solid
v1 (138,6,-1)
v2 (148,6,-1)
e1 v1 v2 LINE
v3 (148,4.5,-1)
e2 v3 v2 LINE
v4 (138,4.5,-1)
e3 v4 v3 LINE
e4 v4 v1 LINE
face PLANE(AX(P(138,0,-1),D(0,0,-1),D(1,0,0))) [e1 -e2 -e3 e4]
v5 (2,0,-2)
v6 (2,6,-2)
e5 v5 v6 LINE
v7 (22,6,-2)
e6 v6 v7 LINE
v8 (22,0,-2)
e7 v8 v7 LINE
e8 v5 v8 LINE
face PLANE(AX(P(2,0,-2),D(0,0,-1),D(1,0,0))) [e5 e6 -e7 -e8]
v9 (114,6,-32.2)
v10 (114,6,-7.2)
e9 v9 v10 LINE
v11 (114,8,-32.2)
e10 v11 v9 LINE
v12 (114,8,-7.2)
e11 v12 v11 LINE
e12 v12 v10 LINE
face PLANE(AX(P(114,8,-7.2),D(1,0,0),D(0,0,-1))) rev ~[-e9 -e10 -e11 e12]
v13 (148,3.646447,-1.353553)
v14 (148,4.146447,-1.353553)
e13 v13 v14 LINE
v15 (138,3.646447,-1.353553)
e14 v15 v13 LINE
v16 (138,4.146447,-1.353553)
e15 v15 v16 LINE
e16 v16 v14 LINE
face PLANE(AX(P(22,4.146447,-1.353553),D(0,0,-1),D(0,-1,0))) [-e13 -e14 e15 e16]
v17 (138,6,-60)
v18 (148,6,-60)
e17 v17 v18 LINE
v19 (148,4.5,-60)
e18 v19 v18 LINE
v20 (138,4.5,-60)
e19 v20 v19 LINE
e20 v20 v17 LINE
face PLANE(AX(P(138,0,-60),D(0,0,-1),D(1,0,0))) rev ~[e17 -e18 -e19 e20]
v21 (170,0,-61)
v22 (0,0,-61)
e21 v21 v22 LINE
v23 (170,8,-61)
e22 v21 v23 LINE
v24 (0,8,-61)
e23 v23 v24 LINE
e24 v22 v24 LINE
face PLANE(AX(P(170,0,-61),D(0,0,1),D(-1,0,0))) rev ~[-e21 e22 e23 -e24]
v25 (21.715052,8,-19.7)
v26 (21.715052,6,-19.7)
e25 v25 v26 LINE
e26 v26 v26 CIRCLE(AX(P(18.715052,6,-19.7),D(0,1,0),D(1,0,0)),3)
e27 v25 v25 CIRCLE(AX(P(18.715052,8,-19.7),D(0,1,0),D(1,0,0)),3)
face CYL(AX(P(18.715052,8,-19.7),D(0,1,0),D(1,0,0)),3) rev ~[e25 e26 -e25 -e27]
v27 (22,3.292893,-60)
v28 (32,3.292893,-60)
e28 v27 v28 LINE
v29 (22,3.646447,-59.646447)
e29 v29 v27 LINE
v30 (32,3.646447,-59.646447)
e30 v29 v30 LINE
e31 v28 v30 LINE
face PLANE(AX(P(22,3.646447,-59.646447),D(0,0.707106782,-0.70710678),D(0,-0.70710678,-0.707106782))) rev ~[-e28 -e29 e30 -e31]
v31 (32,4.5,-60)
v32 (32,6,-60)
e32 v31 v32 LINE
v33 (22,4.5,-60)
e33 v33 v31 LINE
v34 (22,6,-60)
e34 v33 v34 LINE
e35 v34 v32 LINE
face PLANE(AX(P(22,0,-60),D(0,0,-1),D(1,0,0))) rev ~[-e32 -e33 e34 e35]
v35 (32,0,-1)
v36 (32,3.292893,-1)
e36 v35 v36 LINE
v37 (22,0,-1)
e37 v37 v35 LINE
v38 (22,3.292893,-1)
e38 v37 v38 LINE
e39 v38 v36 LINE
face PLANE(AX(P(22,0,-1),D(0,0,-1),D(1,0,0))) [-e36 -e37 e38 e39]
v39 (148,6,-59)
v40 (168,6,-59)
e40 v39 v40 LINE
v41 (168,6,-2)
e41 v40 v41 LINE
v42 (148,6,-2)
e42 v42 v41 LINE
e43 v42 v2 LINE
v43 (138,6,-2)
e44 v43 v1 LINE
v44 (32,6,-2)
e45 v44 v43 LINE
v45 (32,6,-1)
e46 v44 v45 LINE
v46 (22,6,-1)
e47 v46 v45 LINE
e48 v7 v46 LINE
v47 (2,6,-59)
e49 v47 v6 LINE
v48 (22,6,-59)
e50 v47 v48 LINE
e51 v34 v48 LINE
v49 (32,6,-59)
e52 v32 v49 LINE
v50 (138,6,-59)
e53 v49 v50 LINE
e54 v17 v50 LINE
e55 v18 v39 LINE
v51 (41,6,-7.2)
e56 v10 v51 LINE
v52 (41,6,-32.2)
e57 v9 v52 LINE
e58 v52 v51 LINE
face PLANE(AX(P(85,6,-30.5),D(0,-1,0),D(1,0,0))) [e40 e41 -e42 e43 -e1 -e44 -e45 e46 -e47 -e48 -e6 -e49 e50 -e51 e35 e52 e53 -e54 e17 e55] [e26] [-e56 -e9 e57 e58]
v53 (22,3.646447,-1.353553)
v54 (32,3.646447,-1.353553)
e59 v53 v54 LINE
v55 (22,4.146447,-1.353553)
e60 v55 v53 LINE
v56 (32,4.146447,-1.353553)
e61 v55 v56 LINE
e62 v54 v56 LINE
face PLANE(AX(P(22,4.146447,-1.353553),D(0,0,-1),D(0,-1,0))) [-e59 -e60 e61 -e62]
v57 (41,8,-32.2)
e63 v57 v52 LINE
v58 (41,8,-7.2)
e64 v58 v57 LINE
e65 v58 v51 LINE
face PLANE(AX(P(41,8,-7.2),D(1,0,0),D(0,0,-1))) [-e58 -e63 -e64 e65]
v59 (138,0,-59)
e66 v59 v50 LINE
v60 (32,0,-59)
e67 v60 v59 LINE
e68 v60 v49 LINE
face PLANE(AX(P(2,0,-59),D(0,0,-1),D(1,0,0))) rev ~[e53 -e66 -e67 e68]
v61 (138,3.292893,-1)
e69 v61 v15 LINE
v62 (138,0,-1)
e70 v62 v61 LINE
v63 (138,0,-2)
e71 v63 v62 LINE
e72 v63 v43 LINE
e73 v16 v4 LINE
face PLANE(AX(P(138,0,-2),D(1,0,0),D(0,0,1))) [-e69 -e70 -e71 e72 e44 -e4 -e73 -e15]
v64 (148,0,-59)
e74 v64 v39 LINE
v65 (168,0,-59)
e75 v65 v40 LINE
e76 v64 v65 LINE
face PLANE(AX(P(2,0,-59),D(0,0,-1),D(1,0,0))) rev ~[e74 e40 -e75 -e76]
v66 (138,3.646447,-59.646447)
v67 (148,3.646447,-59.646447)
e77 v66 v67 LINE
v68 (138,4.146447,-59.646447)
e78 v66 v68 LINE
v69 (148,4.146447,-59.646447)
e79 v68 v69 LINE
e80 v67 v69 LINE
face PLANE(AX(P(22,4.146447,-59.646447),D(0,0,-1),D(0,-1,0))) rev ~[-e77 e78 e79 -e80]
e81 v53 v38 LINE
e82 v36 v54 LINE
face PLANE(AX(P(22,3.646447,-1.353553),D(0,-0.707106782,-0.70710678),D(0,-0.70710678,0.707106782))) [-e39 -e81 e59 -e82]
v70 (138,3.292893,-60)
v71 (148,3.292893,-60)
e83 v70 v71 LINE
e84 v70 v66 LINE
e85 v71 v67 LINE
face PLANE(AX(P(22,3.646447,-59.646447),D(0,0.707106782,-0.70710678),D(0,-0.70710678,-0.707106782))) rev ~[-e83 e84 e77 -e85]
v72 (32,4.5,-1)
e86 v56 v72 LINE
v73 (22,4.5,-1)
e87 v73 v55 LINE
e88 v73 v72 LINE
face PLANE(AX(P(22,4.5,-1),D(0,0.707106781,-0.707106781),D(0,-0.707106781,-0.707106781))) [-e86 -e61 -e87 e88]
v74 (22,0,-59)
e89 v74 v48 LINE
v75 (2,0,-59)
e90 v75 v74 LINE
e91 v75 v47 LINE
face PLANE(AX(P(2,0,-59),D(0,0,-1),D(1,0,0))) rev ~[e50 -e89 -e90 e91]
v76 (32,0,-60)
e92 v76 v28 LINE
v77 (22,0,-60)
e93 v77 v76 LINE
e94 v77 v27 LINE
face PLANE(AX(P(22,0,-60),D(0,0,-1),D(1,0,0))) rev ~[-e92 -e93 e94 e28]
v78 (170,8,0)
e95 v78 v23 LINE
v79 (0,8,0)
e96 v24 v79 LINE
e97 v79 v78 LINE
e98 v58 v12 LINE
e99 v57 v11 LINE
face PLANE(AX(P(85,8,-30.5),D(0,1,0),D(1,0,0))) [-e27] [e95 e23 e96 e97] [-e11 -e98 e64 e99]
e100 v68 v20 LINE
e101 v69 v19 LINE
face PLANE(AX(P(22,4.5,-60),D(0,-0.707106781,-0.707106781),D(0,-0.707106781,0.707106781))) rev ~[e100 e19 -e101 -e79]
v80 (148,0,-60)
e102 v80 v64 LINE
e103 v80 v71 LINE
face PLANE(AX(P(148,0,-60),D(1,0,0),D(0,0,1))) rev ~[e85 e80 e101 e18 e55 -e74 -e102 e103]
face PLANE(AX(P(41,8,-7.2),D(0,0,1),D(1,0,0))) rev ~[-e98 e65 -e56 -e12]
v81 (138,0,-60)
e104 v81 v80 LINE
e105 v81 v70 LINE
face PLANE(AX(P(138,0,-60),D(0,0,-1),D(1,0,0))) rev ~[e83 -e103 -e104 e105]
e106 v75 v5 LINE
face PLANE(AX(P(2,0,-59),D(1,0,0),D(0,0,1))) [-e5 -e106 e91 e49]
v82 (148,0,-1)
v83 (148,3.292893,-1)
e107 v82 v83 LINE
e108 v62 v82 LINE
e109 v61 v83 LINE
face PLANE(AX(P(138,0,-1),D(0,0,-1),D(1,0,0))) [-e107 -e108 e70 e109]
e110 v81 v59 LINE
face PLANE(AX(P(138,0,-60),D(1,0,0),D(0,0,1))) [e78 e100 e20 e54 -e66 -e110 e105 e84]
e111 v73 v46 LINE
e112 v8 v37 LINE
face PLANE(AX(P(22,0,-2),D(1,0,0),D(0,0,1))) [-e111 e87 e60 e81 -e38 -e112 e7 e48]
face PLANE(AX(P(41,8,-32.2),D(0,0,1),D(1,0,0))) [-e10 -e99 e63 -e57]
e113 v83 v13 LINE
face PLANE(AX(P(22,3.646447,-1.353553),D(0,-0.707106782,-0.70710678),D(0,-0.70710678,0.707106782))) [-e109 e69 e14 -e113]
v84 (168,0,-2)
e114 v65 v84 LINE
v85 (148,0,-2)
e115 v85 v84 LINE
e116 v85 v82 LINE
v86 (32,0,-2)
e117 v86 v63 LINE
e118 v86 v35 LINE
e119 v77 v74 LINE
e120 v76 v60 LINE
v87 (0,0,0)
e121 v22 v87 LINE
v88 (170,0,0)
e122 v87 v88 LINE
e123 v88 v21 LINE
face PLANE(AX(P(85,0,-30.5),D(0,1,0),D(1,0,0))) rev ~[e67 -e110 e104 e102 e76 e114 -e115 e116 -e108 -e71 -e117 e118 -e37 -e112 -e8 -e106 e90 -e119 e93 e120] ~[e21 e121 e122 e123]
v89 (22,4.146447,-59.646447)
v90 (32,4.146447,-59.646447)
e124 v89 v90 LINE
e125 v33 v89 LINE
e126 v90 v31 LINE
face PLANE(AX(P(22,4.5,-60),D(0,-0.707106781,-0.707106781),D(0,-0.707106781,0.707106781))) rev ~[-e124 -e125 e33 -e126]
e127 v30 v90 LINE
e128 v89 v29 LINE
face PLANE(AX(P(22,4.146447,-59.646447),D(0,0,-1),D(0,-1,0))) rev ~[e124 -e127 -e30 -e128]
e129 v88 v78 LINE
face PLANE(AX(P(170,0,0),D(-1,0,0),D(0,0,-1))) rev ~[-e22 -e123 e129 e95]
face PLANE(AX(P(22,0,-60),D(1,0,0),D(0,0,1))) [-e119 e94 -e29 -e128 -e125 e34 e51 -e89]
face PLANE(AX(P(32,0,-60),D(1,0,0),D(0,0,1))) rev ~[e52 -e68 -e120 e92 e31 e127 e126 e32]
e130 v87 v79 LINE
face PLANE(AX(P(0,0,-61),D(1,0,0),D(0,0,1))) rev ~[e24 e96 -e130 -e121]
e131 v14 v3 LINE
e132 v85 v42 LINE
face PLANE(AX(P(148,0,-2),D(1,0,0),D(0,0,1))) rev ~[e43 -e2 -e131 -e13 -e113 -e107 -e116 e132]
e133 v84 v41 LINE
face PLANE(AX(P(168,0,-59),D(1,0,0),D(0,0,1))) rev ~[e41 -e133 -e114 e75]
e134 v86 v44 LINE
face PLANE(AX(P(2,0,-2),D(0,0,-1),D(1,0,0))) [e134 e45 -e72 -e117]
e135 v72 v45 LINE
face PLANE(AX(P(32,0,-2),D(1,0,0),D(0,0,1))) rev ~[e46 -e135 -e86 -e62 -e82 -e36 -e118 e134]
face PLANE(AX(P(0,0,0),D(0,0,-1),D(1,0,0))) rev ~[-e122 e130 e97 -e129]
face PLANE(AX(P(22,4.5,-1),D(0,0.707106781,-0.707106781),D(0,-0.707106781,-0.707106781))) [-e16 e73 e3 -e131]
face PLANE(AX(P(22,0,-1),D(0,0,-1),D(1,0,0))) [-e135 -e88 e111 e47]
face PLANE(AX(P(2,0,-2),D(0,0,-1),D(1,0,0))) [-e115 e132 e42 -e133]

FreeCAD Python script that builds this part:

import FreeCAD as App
import Part
import Sketcher

V = App.Vector

doc = App.newDocument("Part")
params = doc.addObject("Spreadsheet::Sheet", "Params")
for row, (alias, value) in enumerate([
    ("sketch1_width", "170 mm"),
    ("sketch1_height", "61 mm"),
    ("pad1_length", "8 mm"),
    ("sketch2_width", "166 mm"),
    ("sketch2_height", "57 mm"),
    ("pocket1_length", "6 mm"),
    ("sketch3_width", "10 mm"),
    ("sketch3_height", "1 mm"),
    ("pocket2_length", "6 mm"),
    ("sketch4_width", "0.5 mm"),
    ("sketch4_length", "0.5 mm"),
    ("pad2_length", "130 mm"),
    ("sketch5_diameter", "6 mm"),
    ("sketch5_width", "73 mm"),
    ("sketch5_height", "25 mm"),
    ("pocket3_length", "130 mm"),
], start=1):
    params.set(f"A{row}", alias)
    params.set(f"B{row}", "=" + value)
    params.setAlias(f"B{row}", alias)

body = doc.addObject("PartDesign::Body", "Body")

sketch1 = body.newObject("Sketcher::SketchObject", "Sketch")
sketch1.AttachmentSupport = (doc.getObject("XZ_Plane"), [""])
sketch1.MapMode = "FlatFace"
sketch1.addGeometry([
    Part.LineSegment(V(0, 0, 0), V(170, 0, 0)),
    Part.LineSegment(V(170, 0, 0), V(170, -61, 0)),
    Part.LineSegment(V(170, -61, 0), V(0, -61, 0)),
    Part.LineSegment(V(0, -61, 0), V(0, 0, 0)),
], False)
sketch1.addConstraint([
    Sketcher.Constraint("Coincident", 0, 2, 1, 1),
    Sketcher.Constraint("Coincident", 1, 2, 2, 1),
    Sketcher.Constraint("Coincident", 2, 2, 3, 1),
    Sketcher.Constraint("Coincident", 3, 2, 0, 1),
    Sketcher.Constraint("Horizontal", 0),
    Sketcher.Constraint("Vertical", 1),
    Sketcher.Constraint("Horizontal", 2),
    Sketcher.Constraint("Vertical", 3),
    Sketcher.Constraint("Coincident", 3, 2, -1, 1),
    Sketcher.Constraint("DistanceX", 0, 1, 0, 2, 170.0),
    Sketcher.Constraint("DistanceY", 1, 2, 1, 1, 61.0),
])
sketch1.setExpression("Constraints[9]", "Params.sketch1_width")
sketch1.setExpression("Constraints[10]", "Params.sketch1_height")
pad1 = body.newObject("PartDesign::Pad", "Pad")
pad1.Profile = sketch1
pad1.setExpression("Length", "Params.pad1_length")
pad1.Reversed = True

sketch2 = body.newObject("Sketcher::SketchObject", "Sketch001")
sketch2.AttachmentSupport = (doc.getObject("XZ_Plane"), [""])
sketch2.MapMode = "FlatFace"
sketch2.addGeometry([
    Part.LineSegment(V(2, -2, 0), V(2, -59, 0)),
    Part.LineSegment(V(2, -59, 0), V(168, -59, 0)),
    Part.LineSegment(V(168, -59, 0), V(168, -2, 0)),
    Part.LineSegment(V(168, -2, 0), V(2, -2, 0)),
], False)
sketch2.addConstraint([
    Sketcher.Constraint("Coincident", 0, 2, 1, 1),
    Sketcher.Constraint("Coincident", 1, 2, 2, 1),
    Sketcher.Constraint("Coincident", 2, 2, 3, 1),
    Sketcher.Constraint("Coincident", 3, 2, 0, 1),
    Sketcher.Constraint("Vertical", 0),
    Sketcher.Constraint("Horizontal", 1),
    Sketcher.Constraint("Vertical", 2),
    Sketcher.Constraint("Horizontal", 3),
    Sketcher.Constraint("DistanceX", 1, 1, 1, 2, 166.0),
    Sketcher.Constraint("DistanceY", 0, 2, 0, 1, 57.0),
    Sketcher.Constraint("DistanceX", -1, 1, 0, 2, 2.0),
    Sketcher.Constraint("DistanceY", 0, 2, -1, 1, 59.0),
])
sketch2.setExpression("Constraints[8]", "Params.sketch2_width")
sketch2.setExpression("Constraints[9]", "Params.sketch2_height")
pocket1 = body.newObject("PartDesign::Pocket", "Pocket")
pocket1.Profile = sketch2
pocket1.setExpression("Length", "Params.pocket1_length")

sketch3 = body.newObject("Sketcher::SketchObject", "Sketch002")
sketch3.AttachmentSupport = (doc.getObject("XZ_Plane"), [""])
sketch3.MapMode = "FlatFace"
sketch3.addGeometry([
    Part.LineSegment(V(22, -1, 0), V(22, -2, 0)),
    Part.LineSegment(V(22, -2, 0), V(32, -2, 0)),
    Part.LineSegment(V(32, -2, 0), V(32, -1, 0)),
    Part.LineSegment(V(32, -1, 0), V(22, -1, 0)),
    Part.LineSegment(V(22, -59, 0), V(22, -60, 0)),
    Part.LineSegment(V(22, -60, 0), V(32, -60, 0)),
    Part.LineSegment(V(32, -60, 0), V(32, -59, 0)),
    Part.LineSegment(V(32, -59, 0), V(22, -59, 0)),
    Part.LineSegment(V(138, -59, 0), V(138, -60, 0)),
    Part.LineSegment(V(138, -60, 0), V(148, -60, 0)),
    Part.LineSegment(V(148, -60, 0), V(148, -59, 0)),
    Part.LineSegment(V(148, -59, 0), V(138, -59, 0)),
    Part.LineSegment(V(138, -1, 0), V(138, -2, 0)),
    Part.LineSegment(V(138, -2, 0), V(148, -2, 0)),
    Part.LineSegment(V(148, -2, 0), V(148, -1, 0)),
    Part.LineSegment(V(148, -1, 0), V(138, -1, 0)),
], False)
sketch3.addConstraint([
    Sketcher.Constraint("Coincident", 0, 2, 1, 1),
    Sketcher.Constraint("Coincident", 1, 2, 2, 1),
    Sketcher.Constraint("Coincident", 2, 2, 3, 1),
    Sketcher.Constraint("Coincident", 3, 2, 0, 1),
    Sketcher.Constraint("Coincident", 4, 2, 5, 1),
    Sketcher.Constraint("Coincident", 5, 2, 6, 1),
    Sketcher.Constraint("Coincident", 6, 2, 7, 1),
    Sketcher.Constraint("Coincident", 7, 2, 4, 1),
    Sketcher.Constraint("Coincident", 8, 2, 9, 1),
    Sketcher.Constraint("Coincident", 9, 2, 10, 1),
    Sketcher.Constraint("Coincident", 10, 2, 11, 1),
    Sketcher.Constraint("Coincident", 11, 2, 8, 1),
    Sketcher.Constraint("Coincident", 12, 2, 13, 1),
    Sketcher.Constraint("Coincident", 13, 2, 14, 1),
    Sketcher.Constraint("Coincident", 14, 2, 15, 1),
    Sketcher.Constraint("Coincident", 15, 2, 12, 1),
    Sketcher.Constraint("Vertical", 0),
    Sketcher.Constraint("Horizontal", 1),
    Sketcher.Constraint("Vertical", 2),
    Sketcher.Constraint("Horizontal", 3),
    Sketcher.Constraint("Vertical", 4),
    Sketcher.Constraint("Horizontal", 5),
    Sketcher.Constraint("Vertical", 6),
    Sketcher.Constraint("Horizontal", 7),
    Sketcher.Constraint("Vertical", 8),
    Sketcher.Constraint("Horizontal", 9),
    Sketcher.Constraint("Vertical", 10),
    Sketcher.Constraint("Horizontal", 11),
    Sketcher.Constraint("Vertical", 12),
    Sketcher.Constraint("Horizontal", 13),
    Sketcher.Constraint("Vertical", 14),
    Sketcher.Constraint("Horizontal", 15),
    Sketcher.Constraint("Horizontal", 5, 2, 8, 2),
    Sketcher.Constraint("Horizontal", 7, 2, 10, 2),
    Sketcher.Constraint("Horizontal", 1, 2, 12, 2),
    Sketcher.Constraint("Horizontal", 3, 2, 14, 2),
    Sketcher.Constraint("Vertical", 3, 2, 4, 2),
    Sketcher.Constraint("Vertical", 2, 2, 5, 2),
    Sketcher.Constraint("Vertical", 11, 2, 12, 2),
    Sketcher.Constraint("Vertical", 10, 2, 13, 2),
    Sketcher.Constraint("Equal", 7, 9),
    Sketcher.Constraint("Equal", 2, 4),
    Sketcher.Constraint("DistanceX", 1, 1, 1, 2, 10.0),
    Sketcher.Constraint("DistanceY", 0, 2, 0, 1, 1.0),
    Sketcher.Constraint("DistanceX", -1, 1, 0, 2, 22.0),
    Sketcher.Constraint("DistanceY", 0, 2, -1, 1, 2.0),
    Sketcher.Constraint("DistanceY", 4, 2, -1, 1, 60.0),
    Sketcher.Constraint("DistanceX", -1, 1, 8, 2, 138.0),
])
sketch3.setExpression("Constraints[42]", "Params.sketch3_width")
sketch3.setExpression("Constraints[43]", "Params.sketch3_height")
pocket2 = body.newObject("PartDesign::Pocket", "Pocket001")
pocket2.Profile = sketch3
pocket2.setExpression("Length", "Params.pocket2_length")

sketch4 = body.newObject("Sketcher::SketchObject", "Sketch003")
sketch4.AttachmentSupport = (doc.getObject("YZ_Plane"), [""])
sketch4.MapMode = "FlatFace"
sketch4.AttachmentOffset = App.Placement(V(0, 0, 22), App.Rotation())
sketch4.addGeometry([
    Part.LineSegment(V(4.5, -1, 0), V(3.29, -1, 0)),
    Part.LineSegment(V(3.29, -1, 0), V(3.65, -1.35, 0)),
    Part.LineSegment(V(3.65, -1.35, 0), V(4.15, -1.35, 0)),
    Part.LineSegment(V(4.15, -1.35, 0), V(4.5, -1, 0)),
    Part.LineSegment(V(3.29, -60, 0), V(4.5, -60, 0)),
    Part.LineSegment(V(4.5, -60, 0), V(4.15, -59.65, 0)),
    Part.LineSegment(V(4.15, -59.65, 0), V(3.65, -59.65, 0)),
    Part.LineSegment(V(3.65, -59.65, 0), V(3.29, -60, 0)),
], False)
sketch4.addConstraint([
    Sketcher.Constraint("Coincident", 0, 2, 1, 1),
    Sketcher.Constraint("Coincident", 1, 2, 2, 1),
    Sketcher.Constraint("Coincident", 2, 2, 3, 1),
    Sketcher.Constraint("Coincident", 3, 2, 0, 1),
    Sketcher.Constraint("Coincident", 4, 2, 5, 1),
    Sketcher.Constraint("Coincident", 5, 2, 6, 1),
    Sketcher.Constraint("Coincident", 6, 2, 7, 1),
    Sketcher.Constraint("Coincident", 7, 2, 4, 1),
    Sketcher.Constraint("Horizontal", 0),
    Sketcher.Constraint("Horizontal", 2),
    Sketcher.Constraint("Horizontal", 4),
    Sketcher.Constraint("Horizontal", 6),
    Sketcher.Constraint("Perpendicular", 1, 3),
    Sketcher.Constraint("Perpendicular", 3, 5),
    Sketcher.Constraint("Perpendicular", 5, 7),
    Sketcher.Constraint("Vertical", 3, 2, 4, 2),
    Sketcher.Constraint("Vertical", 2, 2, 5, 2),
    Sketcher.Constraint("Vertical", 1, 2, 6, 2),
    Sketcher.Constraint("Vertical", 0, 2, 7, 2),
    Sketcher.Constraint("DistanceX", 2, 1, 2, 2, 0.5),
    Sketcher.Constraint("DistanceY", 0, 2, -1, 1, 1.0),
    Sketcher.Constraint("DistanceY", 4, 2, -1, 1, 60.0),
    Sketcher.Constraint("Distance", 1, 0.5),
    Sketcher.Constraint("DistanceX", -1, 1, 3, 2, 4.5),
])
sketch4.setExpression("Constraints[19]", "Params.sketch4_width")
sketch4.setExpression("Constraints[22]", "Params.sketch4_length")
pad2 = body.newObject("PartDesign::Pad", "Pad001")
pad2.Profile = sketch4
pad2.setExpression("Length", "Params.pad2_length")

sketch5 = body.newObject("Sketcher::SketchObject", "Sketch004")
sketch5.AttachmentSupport = (doc.getObject("XZ_Plane"), [""])
sketch5.MapMode = "FlatFace"
sketch5.AttachmentOffset = App.Placement(V(0, 0, -8), App.Rotation())
sketch5.addGeometry([
    Part.Circle(V(18.7, -19.7, 0), V(0, 0, 1), 3),
    Part.LineSegment(V(41, -32.2, 0), V(41, -7.2, 0)),
    Part.LineSegment(V(41, -7.2, 0), V(114, -7.2, 0)),
    Part.LineSegment(V(114, -7.2, 0), V(114, -32.2, 0)),
    Part.LineSegment(V(114, -32.2, 0), V(41, -32.2, 0)),
], False)
sketch5.addConstraint([
    Sketcher.Constraint("Coincident", 1, 2, 2, 1),
    Sketcher.Constraint("Coincident", 2, 2, 3, 1),
    Sketcher.Constraint("Coincident", 3, 2, 4, 1),
    Sketcher.Constraint("Coincident", 4, 2, 1, 1),
    Sketcher.Constraint("Vertical", 1),
    Sketcher.Constraint("Horizontal", 2),
    Sketcher.Constraint("Vertical", 3),
    Sketcher.Constraint("Horizontal", 4),
    Sketcher.Constraint("Diameter", 0, 6.0),
    Sketcher.Constraint("DistanceX", 2, 1, 2, 2, 73.0),
    Sketcher.Constraint("DistanceY", 1, 1, 1, 2, 25.0),
    Sketcher.Constraint("DistanceX", -1, 1, 1, 2, 41.0),
    Sketcher.Constraint("DistanceY", 0, 3, -1, 1, 19.7),
    Sketcher.Constraint("DistanceY", 1, 2, -1, 1, 7.2),
    Sketcher.Constraint("DistanceX", -1, 1, 0, 3, 18.715052),
])
sketch5.setExpression("Constraints[8]", "Params.sketch5_diameter")
sketch5.setExpression("Constraints[9]", "Params.sketch5_width")
sketch5.setExpression("Constraints[10]", "Params.sketch5_height")
pocket3 = body.newObject("PartDesign::Pocket", "Pocket002")
pocket3.Profile = sketch5
pocket3.setExpression("Length", "Params.pocket3_length")
pocket3.Reversed = True

doc.recompute()
